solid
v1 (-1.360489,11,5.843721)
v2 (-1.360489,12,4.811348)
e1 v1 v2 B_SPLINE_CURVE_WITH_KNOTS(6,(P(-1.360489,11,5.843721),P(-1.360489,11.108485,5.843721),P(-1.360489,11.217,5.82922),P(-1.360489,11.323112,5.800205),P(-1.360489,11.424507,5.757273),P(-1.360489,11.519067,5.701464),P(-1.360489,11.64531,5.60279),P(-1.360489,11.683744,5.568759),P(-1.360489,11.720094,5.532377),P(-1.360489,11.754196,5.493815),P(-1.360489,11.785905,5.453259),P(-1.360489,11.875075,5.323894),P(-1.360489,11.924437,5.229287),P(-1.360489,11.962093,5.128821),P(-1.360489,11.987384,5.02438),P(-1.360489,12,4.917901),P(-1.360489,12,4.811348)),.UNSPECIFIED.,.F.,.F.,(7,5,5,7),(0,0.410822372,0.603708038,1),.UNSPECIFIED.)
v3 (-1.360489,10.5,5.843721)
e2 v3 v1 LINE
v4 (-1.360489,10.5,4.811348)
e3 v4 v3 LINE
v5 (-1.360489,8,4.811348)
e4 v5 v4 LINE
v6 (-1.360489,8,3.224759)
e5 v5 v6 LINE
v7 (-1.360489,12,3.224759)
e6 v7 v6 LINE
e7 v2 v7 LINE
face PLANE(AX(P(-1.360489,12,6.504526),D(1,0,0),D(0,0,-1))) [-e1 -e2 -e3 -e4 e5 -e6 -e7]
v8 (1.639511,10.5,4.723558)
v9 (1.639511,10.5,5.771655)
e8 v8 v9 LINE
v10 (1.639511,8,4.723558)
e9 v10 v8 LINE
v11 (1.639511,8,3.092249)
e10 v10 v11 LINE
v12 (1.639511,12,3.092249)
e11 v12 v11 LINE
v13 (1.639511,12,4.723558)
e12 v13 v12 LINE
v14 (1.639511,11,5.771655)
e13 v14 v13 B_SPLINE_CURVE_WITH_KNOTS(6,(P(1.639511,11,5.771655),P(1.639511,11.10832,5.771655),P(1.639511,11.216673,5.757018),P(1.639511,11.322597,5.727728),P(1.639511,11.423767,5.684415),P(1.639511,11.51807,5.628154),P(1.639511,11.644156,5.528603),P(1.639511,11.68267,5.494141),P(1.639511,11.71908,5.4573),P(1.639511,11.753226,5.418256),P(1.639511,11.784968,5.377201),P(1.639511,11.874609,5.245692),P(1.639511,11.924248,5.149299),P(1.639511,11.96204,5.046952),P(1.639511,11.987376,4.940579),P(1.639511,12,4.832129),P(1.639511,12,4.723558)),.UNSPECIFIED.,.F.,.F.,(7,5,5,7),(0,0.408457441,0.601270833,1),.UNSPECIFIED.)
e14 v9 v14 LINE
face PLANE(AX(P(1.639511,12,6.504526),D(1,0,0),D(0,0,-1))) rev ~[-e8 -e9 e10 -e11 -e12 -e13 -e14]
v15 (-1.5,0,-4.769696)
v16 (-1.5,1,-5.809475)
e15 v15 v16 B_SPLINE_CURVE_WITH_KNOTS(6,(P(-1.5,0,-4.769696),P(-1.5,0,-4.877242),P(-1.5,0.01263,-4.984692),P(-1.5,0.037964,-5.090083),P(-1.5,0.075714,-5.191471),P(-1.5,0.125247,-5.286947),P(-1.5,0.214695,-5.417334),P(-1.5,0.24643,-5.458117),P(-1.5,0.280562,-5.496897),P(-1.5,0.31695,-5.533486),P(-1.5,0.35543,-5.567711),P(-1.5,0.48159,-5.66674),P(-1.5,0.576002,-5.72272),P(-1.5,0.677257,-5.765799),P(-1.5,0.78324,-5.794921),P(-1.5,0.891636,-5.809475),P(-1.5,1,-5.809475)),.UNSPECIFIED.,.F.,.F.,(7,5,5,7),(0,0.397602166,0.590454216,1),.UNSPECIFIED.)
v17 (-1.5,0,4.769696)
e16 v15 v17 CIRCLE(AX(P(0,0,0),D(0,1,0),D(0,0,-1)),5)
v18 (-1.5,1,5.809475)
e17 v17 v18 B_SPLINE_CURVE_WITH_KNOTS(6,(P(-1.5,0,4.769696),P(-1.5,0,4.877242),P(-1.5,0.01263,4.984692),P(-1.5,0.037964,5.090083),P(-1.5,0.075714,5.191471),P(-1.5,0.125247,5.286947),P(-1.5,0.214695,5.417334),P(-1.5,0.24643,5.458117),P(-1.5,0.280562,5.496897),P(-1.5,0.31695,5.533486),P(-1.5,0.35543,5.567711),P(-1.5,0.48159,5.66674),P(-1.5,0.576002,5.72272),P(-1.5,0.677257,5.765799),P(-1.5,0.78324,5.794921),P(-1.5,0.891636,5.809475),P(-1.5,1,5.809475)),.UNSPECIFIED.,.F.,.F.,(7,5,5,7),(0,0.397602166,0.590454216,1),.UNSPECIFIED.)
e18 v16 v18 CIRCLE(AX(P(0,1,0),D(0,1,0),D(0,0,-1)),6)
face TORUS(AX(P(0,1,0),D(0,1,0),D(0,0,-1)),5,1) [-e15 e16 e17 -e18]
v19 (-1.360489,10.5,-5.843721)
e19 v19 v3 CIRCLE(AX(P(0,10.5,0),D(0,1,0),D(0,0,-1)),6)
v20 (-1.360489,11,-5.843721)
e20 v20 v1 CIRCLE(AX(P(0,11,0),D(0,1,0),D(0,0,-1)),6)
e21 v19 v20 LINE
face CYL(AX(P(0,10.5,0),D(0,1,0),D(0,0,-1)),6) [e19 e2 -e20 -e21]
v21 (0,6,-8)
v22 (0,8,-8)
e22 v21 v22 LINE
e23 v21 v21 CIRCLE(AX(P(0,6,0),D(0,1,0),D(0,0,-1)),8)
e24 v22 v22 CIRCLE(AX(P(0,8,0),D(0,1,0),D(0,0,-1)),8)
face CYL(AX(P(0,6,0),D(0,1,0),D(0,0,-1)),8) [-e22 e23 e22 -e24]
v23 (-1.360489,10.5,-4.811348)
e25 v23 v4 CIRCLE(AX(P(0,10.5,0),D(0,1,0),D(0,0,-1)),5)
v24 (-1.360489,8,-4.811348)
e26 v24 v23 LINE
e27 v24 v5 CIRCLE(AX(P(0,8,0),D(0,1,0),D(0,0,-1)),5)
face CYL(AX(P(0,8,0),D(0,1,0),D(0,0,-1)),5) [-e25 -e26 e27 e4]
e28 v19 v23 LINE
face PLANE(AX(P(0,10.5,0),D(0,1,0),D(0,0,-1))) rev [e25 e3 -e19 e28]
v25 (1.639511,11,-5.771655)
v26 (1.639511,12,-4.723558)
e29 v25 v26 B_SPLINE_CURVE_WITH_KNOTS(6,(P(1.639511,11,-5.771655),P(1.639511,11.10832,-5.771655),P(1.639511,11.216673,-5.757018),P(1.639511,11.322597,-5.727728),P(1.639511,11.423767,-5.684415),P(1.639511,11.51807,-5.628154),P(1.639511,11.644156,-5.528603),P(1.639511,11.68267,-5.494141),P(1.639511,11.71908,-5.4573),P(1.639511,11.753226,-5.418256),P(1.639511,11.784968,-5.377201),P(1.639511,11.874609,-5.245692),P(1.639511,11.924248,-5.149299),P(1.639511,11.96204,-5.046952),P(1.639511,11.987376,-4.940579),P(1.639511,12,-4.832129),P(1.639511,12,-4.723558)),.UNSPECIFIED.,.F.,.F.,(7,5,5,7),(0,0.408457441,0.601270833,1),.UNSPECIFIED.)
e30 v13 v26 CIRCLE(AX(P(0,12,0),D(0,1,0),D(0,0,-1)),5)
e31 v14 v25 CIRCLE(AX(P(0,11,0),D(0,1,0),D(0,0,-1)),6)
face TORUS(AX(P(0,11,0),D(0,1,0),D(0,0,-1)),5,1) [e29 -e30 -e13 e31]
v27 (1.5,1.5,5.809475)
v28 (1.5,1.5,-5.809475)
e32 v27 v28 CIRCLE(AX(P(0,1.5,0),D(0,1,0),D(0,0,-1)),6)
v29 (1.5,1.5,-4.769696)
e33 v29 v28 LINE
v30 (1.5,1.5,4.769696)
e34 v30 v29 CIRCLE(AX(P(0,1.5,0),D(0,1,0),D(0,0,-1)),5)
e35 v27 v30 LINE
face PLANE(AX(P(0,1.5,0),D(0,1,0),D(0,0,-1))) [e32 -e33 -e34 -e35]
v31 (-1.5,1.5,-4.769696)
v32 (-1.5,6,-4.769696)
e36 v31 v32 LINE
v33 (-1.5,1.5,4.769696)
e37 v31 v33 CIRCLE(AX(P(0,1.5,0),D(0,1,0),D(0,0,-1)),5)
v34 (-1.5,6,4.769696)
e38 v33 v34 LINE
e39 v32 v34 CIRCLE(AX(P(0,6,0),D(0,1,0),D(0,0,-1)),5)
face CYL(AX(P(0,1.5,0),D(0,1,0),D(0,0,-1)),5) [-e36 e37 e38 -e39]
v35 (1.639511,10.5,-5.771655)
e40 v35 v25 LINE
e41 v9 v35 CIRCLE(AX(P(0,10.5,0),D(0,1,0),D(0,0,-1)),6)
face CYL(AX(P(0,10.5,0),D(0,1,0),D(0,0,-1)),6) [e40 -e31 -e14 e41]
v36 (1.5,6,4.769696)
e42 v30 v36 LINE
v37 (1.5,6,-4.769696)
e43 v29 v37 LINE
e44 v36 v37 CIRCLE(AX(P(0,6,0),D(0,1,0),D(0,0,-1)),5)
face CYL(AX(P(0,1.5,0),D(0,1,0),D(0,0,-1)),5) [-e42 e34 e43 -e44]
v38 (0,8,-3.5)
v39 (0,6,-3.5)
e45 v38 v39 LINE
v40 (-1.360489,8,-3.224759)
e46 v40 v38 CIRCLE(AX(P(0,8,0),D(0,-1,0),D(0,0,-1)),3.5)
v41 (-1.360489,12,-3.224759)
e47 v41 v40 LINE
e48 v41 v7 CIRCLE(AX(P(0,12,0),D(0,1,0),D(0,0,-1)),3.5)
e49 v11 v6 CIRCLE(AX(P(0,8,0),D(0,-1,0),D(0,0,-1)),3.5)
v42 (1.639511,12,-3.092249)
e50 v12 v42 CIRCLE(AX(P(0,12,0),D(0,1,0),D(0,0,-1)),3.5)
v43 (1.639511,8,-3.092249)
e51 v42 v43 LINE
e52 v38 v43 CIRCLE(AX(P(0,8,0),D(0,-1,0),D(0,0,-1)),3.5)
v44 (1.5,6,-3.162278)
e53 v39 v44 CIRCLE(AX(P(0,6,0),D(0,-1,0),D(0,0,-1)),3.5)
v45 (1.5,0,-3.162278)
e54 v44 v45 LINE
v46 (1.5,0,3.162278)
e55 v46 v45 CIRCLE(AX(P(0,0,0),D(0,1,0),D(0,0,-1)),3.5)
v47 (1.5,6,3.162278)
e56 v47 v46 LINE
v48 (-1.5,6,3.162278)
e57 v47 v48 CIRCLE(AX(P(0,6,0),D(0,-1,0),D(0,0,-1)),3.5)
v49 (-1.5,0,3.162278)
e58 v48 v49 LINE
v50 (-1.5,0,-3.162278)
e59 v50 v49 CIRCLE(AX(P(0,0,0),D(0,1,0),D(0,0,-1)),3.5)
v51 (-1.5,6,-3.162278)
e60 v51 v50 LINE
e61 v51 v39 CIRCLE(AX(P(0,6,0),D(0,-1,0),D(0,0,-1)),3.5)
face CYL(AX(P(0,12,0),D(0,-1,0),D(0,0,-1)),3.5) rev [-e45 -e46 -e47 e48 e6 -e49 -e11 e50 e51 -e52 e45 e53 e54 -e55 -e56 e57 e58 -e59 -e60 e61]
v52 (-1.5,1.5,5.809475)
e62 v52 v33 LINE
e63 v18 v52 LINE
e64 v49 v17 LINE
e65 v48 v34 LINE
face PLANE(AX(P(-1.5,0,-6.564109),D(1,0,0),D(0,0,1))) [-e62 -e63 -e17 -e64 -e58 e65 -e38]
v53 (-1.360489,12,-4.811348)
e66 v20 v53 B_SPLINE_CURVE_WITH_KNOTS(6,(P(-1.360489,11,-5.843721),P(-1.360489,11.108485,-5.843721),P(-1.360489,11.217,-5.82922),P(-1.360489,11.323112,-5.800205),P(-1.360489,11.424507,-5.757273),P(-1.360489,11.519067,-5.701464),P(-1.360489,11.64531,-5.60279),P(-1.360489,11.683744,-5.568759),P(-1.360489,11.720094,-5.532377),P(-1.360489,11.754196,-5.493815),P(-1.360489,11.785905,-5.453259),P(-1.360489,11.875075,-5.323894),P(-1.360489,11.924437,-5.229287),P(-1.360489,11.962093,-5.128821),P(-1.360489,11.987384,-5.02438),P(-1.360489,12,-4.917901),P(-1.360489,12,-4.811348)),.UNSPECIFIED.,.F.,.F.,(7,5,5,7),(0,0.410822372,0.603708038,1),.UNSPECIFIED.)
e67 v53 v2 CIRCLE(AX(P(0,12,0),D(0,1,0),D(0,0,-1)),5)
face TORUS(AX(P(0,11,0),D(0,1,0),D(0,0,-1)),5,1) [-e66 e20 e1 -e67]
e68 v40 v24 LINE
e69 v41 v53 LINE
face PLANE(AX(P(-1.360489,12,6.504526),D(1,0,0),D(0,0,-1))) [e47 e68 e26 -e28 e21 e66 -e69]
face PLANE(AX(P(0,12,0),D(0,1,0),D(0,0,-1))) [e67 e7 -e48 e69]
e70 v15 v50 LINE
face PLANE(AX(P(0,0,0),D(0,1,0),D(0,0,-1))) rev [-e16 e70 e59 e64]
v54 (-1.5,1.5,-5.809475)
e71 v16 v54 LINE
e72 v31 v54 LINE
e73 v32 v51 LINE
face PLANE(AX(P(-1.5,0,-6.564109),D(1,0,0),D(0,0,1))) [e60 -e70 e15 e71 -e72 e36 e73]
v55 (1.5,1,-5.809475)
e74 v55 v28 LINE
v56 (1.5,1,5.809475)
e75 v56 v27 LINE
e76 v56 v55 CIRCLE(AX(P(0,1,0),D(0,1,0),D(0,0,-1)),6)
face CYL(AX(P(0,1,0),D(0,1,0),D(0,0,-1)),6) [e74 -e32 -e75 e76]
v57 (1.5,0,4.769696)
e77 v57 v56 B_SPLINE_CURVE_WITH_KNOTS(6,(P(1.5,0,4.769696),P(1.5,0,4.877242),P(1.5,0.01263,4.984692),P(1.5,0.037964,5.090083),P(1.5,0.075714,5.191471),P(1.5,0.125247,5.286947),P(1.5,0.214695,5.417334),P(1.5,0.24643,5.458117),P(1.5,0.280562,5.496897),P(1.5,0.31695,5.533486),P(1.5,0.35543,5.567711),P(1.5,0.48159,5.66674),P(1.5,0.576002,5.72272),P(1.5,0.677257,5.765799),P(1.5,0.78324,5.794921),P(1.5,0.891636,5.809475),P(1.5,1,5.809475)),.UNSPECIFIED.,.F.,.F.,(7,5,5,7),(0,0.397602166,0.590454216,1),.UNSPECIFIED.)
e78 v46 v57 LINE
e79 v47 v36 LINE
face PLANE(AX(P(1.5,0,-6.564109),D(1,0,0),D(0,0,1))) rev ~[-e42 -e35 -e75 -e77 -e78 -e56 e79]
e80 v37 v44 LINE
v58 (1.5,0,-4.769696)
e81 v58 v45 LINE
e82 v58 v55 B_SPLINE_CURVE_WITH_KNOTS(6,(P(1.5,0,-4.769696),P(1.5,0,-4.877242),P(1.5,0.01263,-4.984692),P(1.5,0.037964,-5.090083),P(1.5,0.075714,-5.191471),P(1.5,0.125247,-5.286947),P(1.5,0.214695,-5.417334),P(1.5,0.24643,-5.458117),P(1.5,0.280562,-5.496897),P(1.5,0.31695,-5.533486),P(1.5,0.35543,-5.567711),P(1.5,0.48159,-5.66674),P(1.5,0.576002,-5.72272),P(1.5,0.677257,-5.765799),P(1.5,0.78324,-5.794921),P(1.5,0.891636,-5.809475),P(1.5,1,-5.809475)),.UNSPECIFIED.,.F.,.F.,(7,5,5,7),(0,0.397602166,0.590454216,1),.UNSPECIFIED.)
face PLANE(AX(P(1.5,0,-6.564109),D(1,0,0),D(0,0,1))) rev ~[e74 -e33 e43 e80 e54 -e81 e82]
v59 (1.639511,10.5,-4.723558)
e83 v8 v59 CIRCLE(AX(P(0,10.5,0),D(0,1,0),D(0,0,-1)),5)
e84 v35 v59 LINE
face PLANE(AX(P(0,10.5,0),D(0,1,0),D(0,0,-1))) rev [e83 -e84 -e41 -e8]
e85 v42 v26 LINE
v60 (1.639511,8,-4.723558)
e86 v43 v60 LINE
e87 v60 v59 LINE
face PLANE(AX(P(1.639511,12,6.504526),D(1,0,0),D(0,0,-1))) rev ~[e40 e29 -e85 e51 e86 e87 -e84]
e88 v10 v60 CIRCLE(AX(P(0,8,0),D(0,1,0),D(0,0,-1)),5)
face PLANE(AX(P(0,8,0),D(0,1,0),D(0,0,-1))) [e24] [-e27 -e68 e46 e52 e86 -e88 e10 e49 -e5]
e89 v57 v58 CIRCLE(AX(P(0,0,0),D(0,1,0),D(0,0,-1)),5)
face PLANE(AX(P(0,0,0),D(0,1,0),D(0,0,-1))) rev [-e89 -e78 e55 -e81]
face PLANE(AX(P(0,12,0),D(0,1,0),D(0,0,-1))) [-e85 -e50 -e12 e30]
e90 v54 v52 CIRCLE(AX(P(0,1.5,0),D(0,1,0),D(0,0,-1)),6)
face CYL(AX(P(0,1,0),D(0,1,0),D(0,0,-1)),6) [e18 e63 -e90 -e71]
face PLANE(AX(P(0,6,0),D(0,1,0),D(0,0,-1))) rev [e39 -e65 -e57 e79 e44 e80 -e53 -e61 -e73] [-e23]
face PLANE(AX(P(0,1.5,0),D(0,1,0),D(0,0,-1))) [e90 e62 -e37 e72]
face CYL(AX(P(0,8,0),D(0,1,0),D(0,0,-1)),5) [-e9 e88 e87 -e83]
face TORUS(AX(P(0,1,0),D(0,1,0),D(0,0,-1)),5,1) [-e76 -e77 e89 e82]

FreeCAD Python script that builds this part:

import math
import FreeCAD as App
import Part
import Sketcher
from FreeCAD import Vector

doc = App.newDocument("Part")
params = doc.addObject("Spreadsheet::Sheet", "Params")
for row, (alias, value) in enumerate([
    ("sketch1_radius", "1 mm"),
    ("sketch1_width", "3 mm"),
    ("sketch1_height", "12 mm"),
    ("sketch1_height2", "2 mm"),
    ("sketch1_width2", "1.5 mm"),
    ("revolution_angle", "360 deg"),
    ("sketch2_width", "3 mm"),
    ("pocket1_length", "4 mm"),
    ("sketch3_width", "3 mm"),
    ("pocket2_length", "6 mm"),
], start=1):
    params.set(f"A{row}", alias)
    params.set(f"B{row}", "=" + value)
    params.setAlias(f"B{row}", alias)

body = doc.addObject("PartDesign::Body", "Body")

# Sketch on XY plane
sketch1 = doc.addObject("Sketcher::SketchObject", "Sketch")
body.addObject(sketch1)
sketch1.AttachmentSupport = (doc.XY_Plane, [""])
sketch1.MapMode = "FlatFace"
sketch1.addGeometry([
    Part.LineSegment(Vector(-5, 6, 0), Vector(-5, 1.5, 0)),  # 0
    Part.LineSegment(Vector(-5, 1.5, 0), Vector(-6, 1.5, 0)),  # 1
    Part.LineSegment(Vector(-6, 1.5, 0), Vector(-6, 1, 0)),  # 2
    Part.ArcOfCircle(Part.Circle(Vector(-5, 1, 0), Vector(0, 0, 1), 1), math.radians(-180), math.radians(-90)),  # 3
    Part.LineSegment(Vector(-5, 0, 0), Vector(-3.5, 0, 0)),  # 4
    Part.LineSegment(Vector(-3.5, 0, 0), Vector(-3.5, 12, 0)),  # 5
    Part.LineSegment(Vector(-3.5, 12, 0), Vector(-5, 12, 0)),  # 6
    Part.ArcOfCircle(Part.Circle(Vector(-5, 11, 0), Vector(0, 0, 1), 1), math.radians(90), math.radians(180)),  # 7
    Part.LineSegment(Vector(-6, 11, 0), Vector(-6, 10.5, 0)),  # 8
    Part.LineSegment(Vector(-6, 10.5, 0), Vector(-5, 10.5, 0)),  # 9
    Part.LineSegment(Vector(-5, 10.5, 0), Vector(-5, 8, 0)),  # 10
    Part.LineSegment(Vector(-5, 8, 0), Vector(-8, 8, 0)),  # 11
    Part.LineSegment(Vector(-8, 8, 0), Vector(-8, 6, 0)),  # 12
    Part.LineSegment(Vector(-8, 6, 0), Vector(-5, 6, 0)),  # 13
], False)
sketch1.addConstraint([
    Sketcher.Constraint("Coincident", 0, 2, 1, 1),
    Sketcher.Constraint("Coincident", 1, 2, 2, 1),
    Sketcher.Constraint("Tangent", 2, 2, 3, 1),
    Sketcher.Constraint("Tangent", 3, 2, 4, 1),
    Sketcher.Constraint("Coincident", 4, 2, 5, 1),
    Sketcher.Constraint("Coincident", 5, 2, 6, 1),
    Sketcher.Constraint("Tangent", 6, 2, 7, 1),
    Sketcher.Constraint("Tangent", 7, 2, 8, 1),
    Sketcher.Constraint("Coincident", 8, 2, 9, 1),
    Sketcher.Constraint("Coincident", 9, 2, 10, 1),
    Sketcher.Constraint("Coincident", 10, 2, 11, 1),
    Sketcher.Constraint("Coincident", 11, 2, 12, 1),
    Sketcher.Constraint("Coincident", 12, 2, 13, 1),
    Sketcher.Constraint("Coincident", 13, 2, 0, 1),
    Sketcher.Constraint("Vertical", 0),
    Sketcher.Constraint("Horizontal", 1),
    Sketcher.Constraint("Vertical", 2),
    Sketcher.Constraint("Horizontal", 4),
    Sketcher.Constraint("Vertical", 5),
    Sketcher.Constraint("Horizontal", 6),
    Sketcher.Constraint("Vertical", 8),
    Sketcher.Constraint("Horizontal", 9),
    Sketcher.Constraint("Vertical", 10),
    Sketcher.Constraint("Horizontal", 11),
    Sketcher.Constraint("Vertical", 12),
    Sketcher.Constraint("Horizontal", 13),
    Sketcher.Constraint("Equal", 3, 7),
    Sketcher.Constraint("PointOnObject", 3, 2, -1),
    Sketcher.Constraint("Vertical", 3, 3, 7, 3),
    Sketcher.Constraint("Vertical", 7, 3, 0, 2),
    Sketcher.Constraint("Vertical", 6, 2, 9, 2),
    Sketcher.Constraint("Equal", 2, 8),
    Sketcher.Constraint("Radius", 3, 1.0),
    Sketcher.Constraint("DistanceX", 11, 2, 11, 1, 3.0),
    Sketcher.Constraint("DistanceY", 5, 1, 5, 2, 12.0),
    Sketcher.Constraint("DistanceY", 12, 2, 12, 1, 2.0),
    Sketcher.Constraint("DistanceX", 4, 1, 4, 2, 1.5),
    Sketcher.Constraint("DistanceY", 0, 2, 0, 1, 4.5),
    Sketcher.Constraint("DistanceY", 2, 2, 2, 1, 0.5),
    Sketcher.Constraint("DistanceX", 3, 3, -1, 1, 5.0),
])
sketch1.setExpression("Constraints[32]", "Params.sketch1_radius")
sketch1.setExpression("Constraints[33]", "Params.sketch1_width")
sketch1.setExpression("Constraints[34]", "Params.sketch1_height")
sketch1.setExpression("Constraints[35]", "Params.sketch1_height2")
sketch1.setExpression("Constraints[36]", "Params.sketch1_width2")
revolution = doc.addObject("PartDesign::Revolution", "Revolution")
body.addObject(revolution)
revolution.Profile = sketch1
revolution.ReferenceAxis = (sketch1, ["V_Axis"])
revolution.setExpression("Angle", "Params.revolution_angle")

# Sketch on XZ plane
sketch2 = doc.addObject("Sketcher::SketchObject", "Sketch001")
body.addObject(sketch2)
sketch2.AttachmentSupport = (doc.XZ_Plane, [""])
sketch2.MapMode = "FlatFace"
sketch2.AttachmentOffset = App.Placement(Vector(0, 0, -12), App.Rotation())
sketch2.addGeometry([
    Part.LineSegment(Vector(-1.360489, -6.504526, 0), Vector(-1.360489, 6.504526, 0)),
    Part.LineSegment(Vector(-1.360489, 6.504526, 0), Vector(1.639511, 6.504526, 0)),
    Part.LineSegment(Vector(1.639511, 6.504526, 0), Vector(1.639511, -6.504526, 0)),
    Part.LineSegment(Vector(1.639511, -6.504526, 0), Vector(-1.360489, -6.504526, 0)),
], False)
sketch2.addConstraint([
    Sketcher.Constraint("Coincident", 0, 2, 1, 1),
    Sketcher.Constraint("Coincident", 1, 2, 2, 1),
    Sketcher.Constraint("Coincident", 2, 2, 3, 1),
    Sketcher.Constraint("Coincident", 3, 2, 0, 1),
    Sketcher.Constraint("Vertical", 0),
    Sketcher.Constraint("Horizontal", 1),
    Sketcher.Constraint("Vertical", 2),
    Sketcher.Constraint("Horizontal", 3),
    Sketcher.Constraint("DistanceX", 1, 1, 1, 2, 3.0),
    Sketcher.Constraint("DistanceY", 0, 1, 0, 2, 13.009052),
    Sketcher.Constraint("DistanceX", 0, 2, -1, 1, 1.360489),
    Sketcher.Constraint("DistanceY", -1, 1, 0, 2, 6.504526),
])
sketch2.setExpression("Constraints[8]", "Params.sketch2_width")
pocket1 = doc.addObject("PartDesign::Pocket", "Pocket")
body.addObject(pocket1)
pocket1.Profile = sketch2
pocket1.setExpression("Length", "Params.pocket1_length")
pocket1.Reversed = True

# Sketch on XZ plane
sketch3 = doc.addObject("Sketcher::SketchObject", "Sketch002")
body.addObject(sketch3)
sketch3.AttachmentSupport = (doc.XZ_Plane, [""])
sketch3.MapMode = "FlatFace"
sketch3.addGeometry([
    Part.LineSegment(Vector(-1.5, 6.564109, 0), Vector(-1.5, -6.564109, 0)),
    Part.LineSegment(Vector(-1.5, -6.564109, 0), Vector(1.5, -6.564109, 0)),
    Part.LineSegment(Vector(1.5, -6.564109, 0), Vector(1.5, 6.564109, 0)),
    Part.LineSegment(Vector(1.5, 6.564109, 0), Vector(-1.5, 6.564109, 0)),
], False)
sketch3.addConstraint([
    Sketcher.Constraint("Coincident", 0, 2, 1, 1),
    Sketcher.Constraint("Coincident", 1, 2, 2, 1),
    Sketcher.Constraint("Coincident", 2, 2, 3, 1),
    Sketcher.Constraint("Coincident", 3, 2, 0, 1),
    Sketcher.Constraint("Vertical", 0),
    Sketcher.Constraint("Horizontal", 1),
    Sketcher.Constraint("Vertical", 2),
    Sketcher.Constraint("Horizontal", 3),
    Sketcher.Constraint("Symmetric", 0, 2, 2, 2, -1, 1),
    Sketcher.Constraint("DistanceX", 1, 1, 1, 2, 3.0),
    Sketcher.Constraint("DistanceY", 0, 2, 0, 1, 13.128219),
])
sketch3.setExpression("Constraints[9]", "Params.sketch3_width")
pocket2 = doc.addObject("PartDesign::Pocket", "Pocket001")
body.addObject(pocket2)
pocket2.Profile = sketch3
pocket2.setExpression("Length", "Params.pocket2_length")

doc.recompute()
